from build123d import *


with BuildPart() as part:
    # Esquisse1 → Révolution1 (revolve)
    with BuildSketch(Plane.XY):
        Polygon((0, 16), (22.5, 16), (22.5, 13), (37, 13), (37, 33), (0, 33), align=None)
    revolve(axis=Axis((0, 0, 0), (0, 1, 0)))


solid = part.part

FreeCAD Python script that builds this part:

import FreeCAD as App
import Part
import Sketcher

V = App.Vector

doc = App.newDocument("Part")
params = doc.addObject("Spreadsheet::Sheet", "Params")
for row, (alias, value) in enumerate([
    ("sketch1_width", "37 mm"),
    ("sketch1_height", "3 mm"),
    ("sketch1_height2", "20 mm"),
    ("sketch1_width2", "22.5 mm"),
    ("revolution_angle", "360 deg"),
], start=1):
    params.set(f"A{row}", alias)
    params.set(f"B{row}", "=" + value)
    params.setAlias(f"B{row}", alias)

body = doc.addObject("PartDesign::Body", "Body")

sketch1 = body.newObject("Sketcher::SketchObject", "Sketch")
sketch1.AttachmentSupport = (doc.getObject("XY_Plane"), [""])
sketch1.MapMode = "FlatFace"
sketch1.addGeometry([
    Part.LineSegment(V(0, 16, 0), V(22.5, 16, 0)),
    Part.LineSegment(V(22.5, 16, 0), V(22.5, 13, 0)),
    Part.LineSegment(V(22.5, 13, 0), V(37, 13, 0)),
    Part.LineSegment(V(37, 13, 0), V(37, 33, 0)),
    Part.LineSegment(V(37, 33, 0), V(0, 33, 0)),
    Part.LineSegment(V(0, 33, 0), V(0, 16, 0)),
], False)
sketch1.addConstraint([
    Sketcher.Constraint("Coincident", 0, 2, 1, 1),
    Sketcher.Constraint("Coincident", 1, 2, 2, 1),
    Sketcher.Constraint("Coincident", 2, 2, 3, 1),
    Sketcher.Constraint("Coincident", 3, 2, 4, 1),
    Sketcher.Constraint("Coincident", 4, 2, 5, 1),
    Sketcher.Constraint("Coincident", 5, 2, 0, 1),
    Sketcher.Constraint("Horizontal", 0),
    Sketcher.Constraint("Vertical", 1),
    Sketcher.Constraint("Horizontal", 2),
    Sketcher.Constraint("Vertical", 3),
    Sketcher.Constraint("Horizontal", 4),
    Sketcher.Constraint("Vertical", 5),
    Sketcher.Constraint("PointOnObject", 4, 2, -2),
    Sketcher.Constraint("DistanceX", 4, 2, 4, 1, 37.0),
    Sketcher.Constraint("DistanceY", 1, 2, 1, 1, 3.0),
    Sketcher.Constraint("DistanceY", 3, 1, 3, 2, 20.0),
    Sketcher.Constraint("DistanceX", 0, 1, 0, 2, 22.5),
    Sketcher.Constraint("DistanceY", -1, 1, 0, 2, 16.0),
])
sketch1.setExpression("Constraints[13]", "Params.sketch1_width")
sketch1.setExpression("Constraints[14]", "Params.sketch1_height")
sketch1.setExpression("Constraints[15]", "Params.sketch1_height2")
sketch1.setExpression("Constraints[16]", "Params.sketch1_width2")
revolution = body.newObject("PartDesign::Revolution", "Revolution")
revolution.Profile = sketch1
revolution.ReferenceAxis = (sketch1, ["V_Axis"])
revolution.setExpression("Angle", "Params.revolution_angle")

doc.recompute()
